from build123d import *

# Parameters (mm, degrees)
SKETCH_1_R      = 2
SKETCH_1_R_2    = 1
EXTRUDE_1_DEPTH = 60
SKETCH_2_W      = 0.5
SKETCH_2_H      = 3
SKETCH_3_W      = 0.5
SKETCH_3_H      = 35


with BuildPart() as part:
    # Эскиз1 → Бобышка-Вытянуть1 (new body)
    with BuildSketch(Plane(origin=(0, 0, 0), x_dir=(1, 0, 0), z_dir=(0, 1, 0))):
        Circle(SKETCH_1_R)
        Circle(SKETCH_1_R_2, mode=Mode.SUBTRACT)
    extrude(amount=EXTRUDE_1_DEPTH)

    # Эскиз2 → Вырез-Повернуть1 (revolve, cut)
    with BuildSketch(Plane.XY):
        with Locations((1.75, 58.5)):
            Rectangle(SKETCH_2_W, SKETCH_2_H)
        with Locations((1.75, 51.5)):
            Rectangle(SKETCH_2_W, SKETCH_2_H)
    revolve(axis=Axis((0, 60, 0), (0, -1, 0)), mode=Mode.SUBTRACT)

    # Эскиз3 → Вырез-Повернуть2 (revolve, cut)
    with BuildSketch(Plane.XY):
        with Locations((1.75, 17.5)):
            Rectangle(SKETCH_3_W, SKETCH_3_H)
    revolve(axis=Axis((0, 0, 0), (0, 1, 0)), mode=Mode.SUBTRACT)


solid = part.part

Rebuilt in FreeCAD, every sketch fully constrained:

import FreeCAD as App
import Part
import Sketcher

V = App.Vector


def add_polygon(sketch, points):
    """Adds a closed chain of lines whose ends are joined by coincident constraints."""
    first, n = sketch.GeometryCount, len(points)
    for a, b in zip(points, points[1:] + points[:1]):
        sketch.addGeometry(Part.LineSegment(App.Vector(*a, 0), App.Vector(*b, 0)), False)
    for i in range(n):
        sketch.addConstraint(Sketcher.Constraint("Coincident", first + i, 2, first + (i + 1) % n, 1))

doc = App.newDocument("Part")
body = doc.addObject("PartDesign::Body", "Body")

# Sketch on XZ plane
sketch1 = body.newObject("Sketcher::SketchObject", "Sketch")
sketch1.AttachmentSupport = (doc.getObject("XZ_Plane"), [""])
sketch1.MapMode = "FlatFace"
sketch1.addGeometry([
    Part.Circle(V(0, 0, 0), V(0, 0, 1), 2),
    Part.Circle(V(0, 0, 0), V(0, 0, 1), 1),
], False)
sketch1.addConstraint([
    Sketcher.Constraint("Coincident", 0, 3, -1, 1),
    Sketcher.Constraint("Coincident", 1, 3, -1, 1),
    Sketcher.Constraint("Diameter", 0, 4.0),
    Sketcher.Constraint("Diameter", 1, 2.0),
])
pad1 = body.newObject("PartDesign::Pad", "Pad")
pad1.Profile = sketch1
pad1.Length = 60
pad1.Reversed = True

# Sketch on XY plane
sketch2 = body.newObject("Sketcher::SketchObject", "Sketch001")
sketch2.AttachmentSupport = (doc.getObject("XY_Plane"), [""])
sketch2.MapMode = "FlatFace"
add_polygon(sketch2, [(1.5, 60), (1.5, 57), (2, 57), (2, 60)])  # lines 0-3
add_polygon(sketch2, [(1.5, 53), (1.5, 50), (2, 50), (2, 53)])  # lines 4-7
sketch2.addConstraint([
    Sketcher.Constraint("Vertical", 0),
    Sketcher.Constraint("Horizontal", 1),
    Sketcher.Constraint("Vertical", 2),
    Sketcher.Constraint("Horizontal", 3),
    Sketcher.Constraint("Vertical", 4),
    Sketcher.Constraint("Horizontal", 5),
    Sketcher.Constraint("Vertical", 6),
    Sketcher.Constraint("Horizontal", 7),
    Sketcher.Constraint("Vertical", 3, 2, 4, 2),
    Sketcher.Constraint("Vertical", 2, 2, 5, 2),
    Sketcher.Constraint("Equal", 2, 4),
    Sketcher.Constraint("DistanceY", 0, 2, 0, 1, 3.0),
    Sketcher.Constraint("DistanceX", 1, 1, 1, 2, 0.5),
    Sketcher.Constraint("DistanceY", -1, 1, 0, 2, 57.0),
    Sketcher.Constraint("DistanceX", -1, 1, 1, 2, 2.0),
    Sketcher.Constraint("DistanceY", -1, 1, 4, 2, 50.0),
])
groove = body.newObject("PartDesign::Groove", "Groove")
groove.Profile = sketch2
groove.ReferenceAxis = (sketch2, ["V_Axis"])
groove.Angle = 360

# Sketch on XY plane
sketch3 = body.newObject("Sketcher::SketchObject", "Sketch002")
sketch3.AttachmentSupport = (doc.getObject("XY_Plane"), [""])
sketch3.MapMode = "FlatFace"
add_polygon(sketch3, [(1.5, 35), (1.5, 0), (2, 0), (2, 35)])  # lines 0-3
sketch3.addConstraint([
    Sketcher.Constraint("Vertical", 0),
    Sketcher.Constraint("Horizontal", 1),
    Sketcher.Constraint("Vertical", 2),
    Sketcher.Constraint("Horizontal", 3),
    Sketcher.Constraint("PointOnObject", 0, 2, -1),
    Sketcher.Constraint("DistanceY", 0, 2, 0, 1, 35.0),
    Sketcher.Constraint("DistanceX", 1, 1, 1, 2, 0.5),
    Sketcher.Constraint("DistanceX", -1, 1, 1, 2, 2.0),
])
groove2 = body.newObject("PartDesign::Groove", "Groove001")
groove2.Profile = sketch3
groove2.ReferenceAxis = (sketch3, ["V_Axis"])
groove2.Angle = 360

doc.recompute()
